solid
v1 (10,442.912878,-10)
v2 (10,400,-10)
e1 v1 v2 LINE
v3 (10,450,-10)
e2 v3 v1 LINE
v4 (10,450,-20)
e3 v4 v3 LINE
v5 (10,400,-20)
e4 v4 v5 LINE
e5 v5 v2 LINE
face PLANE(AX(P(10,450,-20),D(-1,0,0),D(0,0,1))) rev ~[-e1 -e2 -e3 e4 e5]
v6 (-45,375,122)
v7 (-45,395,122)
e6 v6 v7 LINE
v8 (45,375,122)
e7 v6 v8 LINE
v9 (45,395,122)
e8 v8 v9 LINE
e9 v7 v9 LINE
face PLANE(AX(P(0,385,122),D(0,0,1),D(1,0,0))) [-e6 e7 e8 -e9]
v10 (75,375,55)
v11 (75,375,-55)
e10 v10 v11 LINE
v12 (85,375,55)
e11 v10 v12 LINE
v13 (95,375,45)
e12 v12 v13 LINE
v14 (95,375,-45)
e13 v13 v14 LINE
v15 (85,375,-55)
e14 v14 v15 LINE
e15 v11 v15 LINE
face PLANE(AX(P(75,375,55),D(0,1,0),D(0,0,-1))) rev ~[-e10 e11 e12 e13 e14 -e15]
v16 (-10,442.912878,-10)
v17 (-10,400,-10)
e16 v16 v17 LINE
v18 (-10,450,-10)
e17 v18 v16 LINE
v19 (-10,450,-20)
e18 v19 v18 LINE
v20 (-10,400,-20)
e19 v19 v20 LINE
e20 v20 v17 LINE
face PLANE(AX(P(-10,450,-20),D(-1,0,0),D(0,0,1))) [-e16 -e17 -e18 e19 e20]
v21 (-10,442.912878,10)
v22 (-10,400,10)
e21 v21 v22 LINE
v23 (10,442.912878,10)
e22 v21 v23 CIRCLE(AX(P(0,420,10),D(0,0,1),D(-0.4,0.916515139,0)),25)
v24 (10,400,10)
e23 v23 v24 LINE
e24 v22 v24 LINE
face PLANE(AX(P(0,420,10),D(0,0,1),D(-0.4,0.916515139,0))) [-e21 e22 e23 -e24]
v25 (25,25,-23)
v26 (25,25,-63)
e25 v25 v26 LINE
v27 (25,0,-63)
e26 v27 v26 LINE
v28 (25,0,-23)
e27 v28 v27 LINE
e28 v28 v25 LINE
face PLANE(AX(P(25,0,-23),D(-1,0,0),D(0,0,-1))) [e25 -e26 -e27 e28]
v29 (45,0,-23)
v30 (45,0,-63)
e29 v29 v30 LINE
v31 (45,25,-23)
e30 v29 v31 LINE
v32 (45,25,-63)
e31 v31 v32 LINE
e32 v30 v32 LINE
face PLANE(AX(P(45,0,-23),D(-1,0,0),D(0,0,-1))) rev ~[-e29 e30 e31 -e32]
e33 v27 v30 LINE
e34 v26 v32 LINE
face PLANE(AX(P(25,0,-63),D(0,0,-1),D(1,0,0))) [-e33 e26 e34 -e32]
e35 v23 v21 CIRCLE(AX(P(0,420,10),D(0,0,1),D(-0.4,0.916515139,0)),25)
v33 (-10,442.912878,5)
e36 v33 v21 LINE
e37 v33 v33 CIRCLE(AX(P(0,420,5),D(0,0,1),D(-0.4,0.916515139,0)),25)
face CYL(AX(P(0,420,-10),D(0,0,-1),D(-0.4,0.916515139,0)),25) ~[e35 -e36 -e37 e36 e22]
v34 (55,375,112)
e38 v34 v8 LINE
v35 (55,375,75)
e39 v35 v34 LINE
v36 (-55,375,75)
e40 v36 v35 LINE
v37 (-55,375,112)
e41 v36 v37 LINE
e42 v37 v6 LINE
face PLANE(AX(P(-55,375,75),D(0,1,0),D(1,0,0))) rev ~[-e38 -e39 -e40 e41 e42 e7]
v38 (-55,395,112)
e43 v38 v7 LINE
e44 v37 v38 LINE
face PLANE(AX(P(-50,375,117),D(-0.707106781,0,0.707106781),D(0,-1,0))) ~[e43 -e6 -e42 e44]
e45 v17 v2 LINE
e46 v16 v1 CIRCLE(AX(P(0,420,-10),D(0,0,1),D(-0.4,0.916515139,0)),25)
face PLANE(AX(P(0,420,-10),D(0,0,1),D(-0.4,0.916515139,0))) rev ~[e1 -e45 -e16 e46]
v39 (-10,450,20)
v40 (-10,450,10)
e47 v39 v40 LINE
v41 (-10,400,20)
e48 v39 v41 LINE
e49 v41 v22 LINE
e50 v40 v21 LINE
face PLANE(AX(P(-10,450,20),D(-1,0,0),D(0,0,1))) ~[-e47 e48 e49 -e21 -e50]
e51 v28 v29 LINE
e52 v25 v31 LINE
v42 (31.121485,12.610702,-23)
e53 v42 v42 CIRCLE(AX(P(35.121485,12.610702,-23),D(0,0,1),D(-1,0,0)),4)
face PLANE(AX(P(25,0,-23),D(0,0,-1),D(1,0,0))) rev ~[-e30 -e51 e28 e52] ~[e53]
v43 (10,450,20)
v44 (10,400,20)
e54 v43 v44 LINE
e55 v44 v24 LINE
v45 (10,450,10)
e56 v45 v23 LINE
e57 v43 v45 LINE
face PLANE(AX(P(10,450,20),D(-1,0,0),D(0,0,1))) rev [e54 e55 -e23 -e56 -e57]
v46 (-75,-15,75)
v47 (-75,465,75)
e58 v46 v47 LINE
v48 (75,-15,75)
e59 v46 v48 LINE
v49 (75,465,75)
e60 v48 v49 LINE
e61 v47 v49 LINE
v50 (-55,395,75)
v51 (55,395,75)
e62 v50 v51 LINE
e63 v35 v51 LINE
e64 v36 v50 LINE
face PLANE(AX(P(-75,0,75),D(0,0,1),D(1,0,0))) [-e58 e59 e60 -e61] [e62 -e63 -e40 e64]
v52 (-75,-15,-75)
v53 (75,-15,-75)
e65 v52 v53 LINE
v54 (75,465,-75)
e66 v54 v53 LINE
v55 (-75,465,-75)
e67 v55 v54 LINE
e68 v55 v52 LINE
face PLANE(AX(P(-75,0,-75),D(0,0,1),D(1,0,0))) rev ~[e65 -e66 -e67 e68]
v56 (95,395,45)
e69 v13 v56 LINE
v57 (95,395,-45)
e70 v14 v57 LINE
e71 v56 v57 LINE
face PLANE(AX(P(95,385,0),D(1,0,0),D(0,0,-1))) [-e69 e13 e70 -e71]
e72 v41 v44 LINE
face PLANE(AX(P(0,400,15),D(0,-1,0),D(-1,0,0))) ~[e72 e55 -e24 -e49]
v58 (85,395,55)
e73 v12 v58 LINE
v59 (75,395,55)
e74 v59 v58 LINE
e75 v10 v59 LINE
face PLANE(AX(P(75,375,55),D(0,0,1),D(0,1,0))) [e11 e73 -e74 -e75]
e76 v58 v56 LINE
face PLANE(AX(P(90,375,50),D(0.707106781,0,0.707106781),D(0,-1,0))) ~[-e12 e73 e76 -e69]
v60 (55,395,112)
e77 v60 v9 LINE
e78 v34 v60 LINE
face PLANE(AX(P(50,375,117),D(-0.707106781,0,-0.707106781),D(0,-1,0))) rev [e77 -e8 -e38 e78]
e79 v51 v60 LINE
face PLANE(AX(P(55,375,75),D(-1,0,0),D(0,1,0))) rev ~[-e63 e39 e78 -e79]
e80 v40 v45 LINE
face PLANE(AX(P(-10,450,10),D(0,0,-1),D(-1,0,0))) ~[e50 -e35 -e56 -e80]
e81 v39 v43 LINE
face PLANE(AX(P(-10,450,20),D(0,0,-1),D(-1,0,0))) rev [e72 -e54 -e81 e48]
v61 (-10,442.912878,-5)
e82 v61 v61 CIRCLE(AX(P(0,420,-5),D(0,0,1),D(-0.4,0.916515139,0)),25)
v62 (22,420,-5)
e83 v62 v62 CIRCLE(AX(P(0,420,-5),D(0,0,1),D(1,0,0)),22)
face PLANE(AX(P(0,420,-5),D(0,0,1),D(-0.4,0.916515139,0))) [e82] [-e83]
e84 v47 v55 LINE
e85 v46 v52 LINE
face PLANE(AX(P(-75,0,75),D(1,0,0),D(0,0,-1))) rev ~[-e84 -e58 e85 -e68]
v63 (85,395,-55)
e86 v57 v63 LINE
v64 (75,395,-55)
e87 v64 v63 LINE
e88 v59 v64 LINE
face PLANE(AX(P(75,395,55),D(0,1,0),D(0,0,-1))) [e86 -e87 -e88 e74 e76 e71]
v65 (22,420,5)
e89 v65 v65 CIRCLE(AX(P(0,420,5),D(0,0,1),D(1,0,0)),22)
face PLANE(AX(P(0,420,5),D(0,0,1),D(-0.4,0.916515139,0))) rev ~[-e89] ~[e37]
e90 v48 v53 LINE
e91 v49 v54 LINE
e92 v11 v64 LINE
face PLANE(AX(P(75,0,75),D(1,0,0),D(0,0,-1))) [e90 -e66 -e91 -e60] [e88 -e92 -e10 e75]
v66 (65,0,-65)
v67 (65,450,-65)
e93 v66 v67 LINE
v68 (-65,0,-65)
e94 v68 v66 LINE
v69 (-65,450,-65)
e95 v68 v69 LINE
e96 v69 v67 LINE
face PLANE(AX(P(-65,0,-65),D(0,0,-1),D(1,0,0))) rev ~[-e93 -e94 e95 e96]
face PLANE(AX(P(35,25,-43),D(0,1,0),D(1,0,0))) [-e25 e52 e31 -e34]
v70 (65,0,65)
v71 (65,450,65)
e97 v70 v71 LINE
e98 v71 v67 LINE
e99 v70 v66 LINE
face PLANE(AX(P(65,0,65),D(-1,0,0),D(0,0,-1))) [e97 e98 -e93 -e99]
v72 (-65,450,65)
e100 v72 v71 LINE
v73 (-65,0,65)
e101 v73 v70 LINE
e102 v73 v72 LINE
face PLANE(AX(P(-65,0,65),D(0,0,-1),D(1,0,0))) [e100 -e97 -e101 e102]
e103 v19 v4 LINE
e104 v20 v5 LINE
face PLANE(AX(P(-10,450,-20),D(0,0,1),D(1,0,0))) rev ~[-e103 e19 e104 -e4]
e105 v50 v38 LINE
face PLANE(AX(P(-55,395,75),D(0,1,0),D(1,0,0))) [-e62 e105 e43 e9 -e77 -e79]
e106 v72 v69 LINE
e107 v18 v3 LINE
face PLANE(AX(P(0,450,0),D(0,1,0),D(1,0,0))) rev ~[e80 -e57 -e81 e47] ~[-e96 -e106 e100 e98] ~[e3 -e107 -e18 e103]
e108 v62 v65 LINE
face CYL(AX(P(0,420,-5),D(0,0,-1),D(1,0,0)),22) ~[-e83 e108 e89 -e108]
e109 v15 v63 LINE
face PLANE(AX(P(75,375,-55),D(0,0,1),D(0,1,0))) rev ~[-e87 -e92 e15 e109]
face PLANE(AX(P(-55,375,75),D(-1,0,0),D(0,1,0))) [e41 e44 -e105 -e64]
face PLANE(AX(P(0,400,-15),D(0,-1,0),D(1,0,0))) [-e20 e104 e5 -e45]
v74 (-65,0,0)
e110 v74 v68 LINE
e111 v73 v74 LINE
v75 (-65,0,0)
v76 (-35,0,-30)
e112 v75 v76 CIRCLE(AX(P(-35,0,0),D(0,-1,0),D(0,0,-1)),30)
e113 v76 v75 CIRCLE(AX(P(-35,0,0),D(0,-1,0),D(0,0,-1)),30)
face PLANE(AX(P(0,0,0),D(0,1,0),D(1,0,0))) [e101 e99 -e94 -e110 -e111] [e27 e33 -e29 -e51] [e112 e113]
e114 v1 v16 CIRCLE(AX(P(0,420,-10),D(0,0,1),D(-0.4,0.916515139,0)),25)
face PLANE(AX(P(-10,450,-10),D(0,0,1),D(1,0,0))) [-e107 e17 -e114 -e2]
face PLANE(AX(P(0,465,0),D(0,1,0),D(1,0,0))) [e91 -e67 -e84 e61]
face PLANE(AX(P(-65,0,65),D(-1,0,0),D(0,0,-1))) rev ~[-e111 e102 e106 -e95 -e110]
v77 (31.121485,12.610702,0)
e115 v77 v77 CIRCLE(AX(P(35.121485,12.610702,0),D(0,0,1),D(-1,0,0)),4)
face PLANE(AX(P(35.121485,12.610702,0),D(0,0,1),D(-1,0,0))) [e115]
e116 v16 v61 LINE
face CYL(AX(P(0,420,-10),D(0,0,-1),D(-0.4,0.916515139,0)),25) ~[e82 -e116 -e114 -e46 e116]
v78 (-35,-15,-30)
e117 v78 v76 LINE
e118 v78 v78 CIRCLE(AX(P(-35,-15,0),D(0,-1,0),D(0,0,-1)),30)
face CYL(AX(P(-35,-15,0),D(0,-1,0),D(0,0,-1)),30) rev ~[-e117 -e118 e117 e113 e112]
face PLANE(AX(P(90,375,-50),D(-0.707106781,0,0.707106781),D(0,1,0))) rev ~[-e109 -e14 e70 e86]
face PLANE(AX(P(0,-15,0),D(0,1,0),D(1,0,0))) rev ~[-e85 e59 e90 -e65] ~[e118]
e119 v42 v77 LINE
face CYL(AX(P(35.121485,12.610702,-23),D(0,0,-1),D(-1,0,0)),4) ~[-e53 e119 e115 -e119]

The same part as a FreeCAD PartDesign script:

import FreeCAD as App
import Part
import Sketcher


def edges_at(feature, points):
    """Names of the edges that pass closest to the given points."""
    edges = feature.Shape.Edges
    near = lambda p: min(range(len(edges)), key=lambda i: edges[i].distToShape(Part.Vertex(*p))[0])
    return sorted({f"Edge{near(p) + 1}" for p in points})


def add_polygon(sketch, points):
    """Adds a closed chain of lines whose ends are joined by coincident constraints."""
    first, n = sketch.GeometryCount, len(points)
    for a, b in zip(points, points[1:] + points[:1]):
        sketch.addGeometry(Part.LineSegment(App.Vector(*a, 0), App.Vector(*b, 0)), False)
    for i in range(n):
        sketch.addConstraint(Sketcher.Constraint("Coincident", first + i, 2, first + (i + 1) % n, 1))

doc = App.newDocument("Part")
params = doc.addObject("Spreadsheet::Sheet", "Params")
for row, (alias, value) in enumerate([
    ("sketch1_width", "150 mm"),
    ("sketch1_width2", "130 mm"),
    ("pad1_length", "450 mm"),
    ("sketch2_width", "150 mm"),
    ("pad2_length", "15 mm"),
    ("sketch3_width", "150 mm"),
    ("pad3_length", "15 mm"),
    ("sketch4_diameter", "60 mm"),
    ("pocket1_length", "15 mm"),
    ("sketch5_width", "20 mm"),
    ("sketch5_height", "10 mm"),
    ("pad4_length", "50 mm"),
    ("sketch6_diameter", "50 mm"),
    ("pad5_length", "20 mm"),
    ("sketch7_diameter", "50 mm"),
    ("sketch7_diameter2", "44 mm"),
    ("pocket2_length", "10 mm"),
    ("sketch8_width", "20 mm"),
    ("sketch8_height", "40 mm"),
    ("pad6_length", "25 mm"),
    ("sketch9_diameter", "8 mm"),
    ("pad7_length", "23 mm"),
    ("sketch10_width", "20 mm"),
    ("sketch10_height", "110 mm"),
    ("pad8_length", "20 mm"),
    ("chamfer_size", "10 mm"),
    ("chamfer2_size", "10 mm"),
    ("sketch11_width", "110 mm"),
    ("sketch11_height", "20 mm"),
    ("pad9_length", "47 mm"),
    ("chamfer3_size", "10 mm"),
], start=1):
    params.set(f"A{row}", alias)
    params.set(f"B{row}", "=" + value)
    params.setAlias(f"B{row}", alias)

body = doc.addObject("PartDesign::Body", "Body")

# Sketch on XZ plane
sketch1 = body.newObject("Sketcher::SketchObject", "Sketch")
sketch1.AttachmentSupport = (doc.getObject("XZ_Plane"), [""])
sketch1.MapMode = "FlatFace"
add_polygon(sketch1, [(-75, -75), (-75, 75), (75, 75), (75, -75)])  # lines 0-3
add_polygon(sketch1, [(65, 65), (-65, 65), (-65, -65), (65, -65)])  # lines 4-7
sketch1.addConstraint([
    Sketcher.Constraint("Vertical", 0),
    Sketcher.Constraint("Horizontal", 1),
    Sketcher.Constraint("Vertical", 2),
    Sketcher.Constraint("Horizontal", 3),
    Sketcher.Constraint("Horizontal", 4),
    Sketcher.Constraint("Vertical", 5),
    Sketcher.Constraint("Horizontal", 6),
    Sketcher.Constraint("Vertical", 7),
    Sketcher.Constraint("Symmetric", 0, 2, 2, 2, -1, 1),
    Sketcher.Constraint("Symmetric", 4, 2, 6, 2, -1, 1),
    Sketcher.Constraint("Equal", 3, 0),
    Sketcher.Constraint("Equal", 6, 5),
    Sketcher.Constraint("DistanceX", 1, 1, 1, 2, 150.0),
    Sketcher.Constraint("DistanceX", 4, 2, 4, 1, 130.0),
])
sketch1.setExpression("Constraints[20]", "Params.sketch1_width")
sketch1.setExpression("Constraints[21]", "Params.sketch1_width2")
pad1 = body.newObject("PartDesign::Pad", "Pad")
pad1.Profile = sketch1
pad1.setExpression("Length", "Params.pad1_length")
pad1.Reversed = True

# Sketch on XZ plane
sketch2 = body.newObject("Sketcher::SketchObject", "Sketch001")
sketch2.AttachmentSupport = (doc.getObject("XZ_Plane"), [""])
sketch2.MapMode = "FlatFace"
sketch2.AttachmentOffset = App.Placement(App.Vector(0, 0, -450), App.Rotation())
add_polygon(sketch2, [(-75, -75), (-75, 75), (75, 75), (75, -75)])  # lines 0-3
sketch2.addConstraint([
    Sketcher.Constraint("Vertical", 0),
    Sketcher.Constraint("Horizontal", 1),
    Sketcher.Constraint("Vertical", 2),
    Sketcher.Constraint("Horizontal", 3),
    Sketcher.Constraint("Symmetric", 0, 2, 2, 2, -1, 1),
    Sketcher.Constraint("Equal", 3, 0),
    Sketcher.Constraint("DistanceX", 1, 1, 1, 2, 150.0),
])
sketch2.setExpression("Constraints[10]", "Params.sketch2_width")
pad2 = body.newObject("PartDesign::Pad", "Pad001")
pad2.Profile = sketch2
pad2.setExpression("Length", "Params.pad2_length")
pad2.Reversed = True

# Sketch on XZ plane
sketch3 = body.newObject("Sketcher::SketchObject", "Sketch002")
sketch3.AttachmentSupport = (doc.getObject("XZ_Plane"), [""])
sketch3.MapMode = "FlatFace"
add_polygon(sketch3, [(-75, -75), (-75, 75), (75, 75), (75, -75)])  # lines 0-3
sketch3.addConstraint([
    Sketcher.Constraint("Vertical", 0),
    Sketcher.Constraint("Horizontal", 1),
    Sketcher.Constraint("Vertical", 2),
    Sketcher.Constraint("Horizontal", 3),
    Sketcher.Constraint("Symmetric", 0, 2, 2, 2, -1, 1),
    Sketcher.Constraint("Equal", 3, 0),
    Sketcher.Constraint("DistanceX", 1, 1, 1, 2, 150.0),
])
sketch3.setExpression("Constraints[10]", "Params.sketch3_width")
pad3 = body.newObject("PartDesign::Pad", "Pad002")
pad3.Profile = sketch3
pad3.setExpression("Length", "Params.pad3_length")

# Sketch on XZ plane
sketch4 = body.newObject("Sketcher::SketchObject", "Sketch003")
sketch4.AttachmentSupport = (doc.getObject("XZ_Plane"), [""])
sketch4.MapMode = "FlatFace"
sketch4.AttachmentOffset = App.Placement(App.Vector(0, 0, 15), App.Rotation())
sketch4.addGeometry(Part.Circle(App.Vector(-35, 0, 0), App.Vector(0, 0, 1), 30), False)
sketch4.addConstraint([
    Sketcher.Constraint("PointOnObject", 0, 3, -1),
    Sketcher.Constraint("Diameter", 0, 60.0),
    Sketcher.Constraint("DistanceX", 0, 3, -1, 1, 35.0),
])
sketch4.setExpression("Constraints[1]", "Params.sketch4_diameter")
pocket1 = body.newObject("PartDesign::Pocket", "Pocket")
pocket1.Profile = sketch4
pocket1.setExpression("Length", "Params.pocket1_length")

# Sketch on XZ plane
sketch5 = body.newObject("Sketcher::SketchObject", "Sketch004")
sketch5.AttachmentSupport = (doc.getObject("XZ_Plane"), [""])
sketch5.MapMode = "FlatFace"
sketch5.AttachmentOffset = App.Placement(App.Vector(0, 0, -450), App.Rotation())
add_polygon(sketch5, [(-10, -10), (-10, -20), (10, -20), (10, -10)])  # lines 0-3
sketch5.addConstraint([
    Sketcher.Constraint("Vertical", 0),
    Sketcher.Constraint("Horizontal", 1),
    Sketcher.Constraint("Vertical", 2),
    Sketcher.Constraint("Horizontal", 3),
    Sketcher.Constraint("DistanceX", 1, 1, 1, 2, 20.0),
    Sketcher.Constraint("DistanceY", 0, 2, 0, 1, 10.0),
    Sketcher.Constraint("DistanceX", 0, 2, -1, 1, 10.0),
    Sketcher.Constraint("DistanceY", 0, 2, -1, 1, 20.0),
])
sketch5.setExpression("Constraints[8]", "Params.sketch5_width")
sketch5.setExpression("Constraints[9]", "Params.sketch5_height")
pad4 = body.newObject("PartDesign::Pad", "Pad003")
pad4.Profile = sketch5
pad4.setExpression("Length", "Params.pad4_length")
doc.recompute()

mirrored = body.newObject("PartDesign::Mirrored", "Mirrored")
mirrored.Originals = [pad4]
mirrored.MirrorPlane = (doc.getObject("XY_Plane"), [""])
body.Tip = mirrored

# Sketch on XY plane
sketch6 = body.newObject("Sketcher::SketchObject", "Sketch005")
sketch6.AttachmentSupport = (doc.getObject("XY_Plane"), [""])
sketch6.MapMode = "FlatFace"
sketch6.AttachmentOffset = App.Placement(App.Vector(0, 0, -10), App.Rotation())
sketch6.addGeometry(Part.Circle(App.Vector(0, 420, 0), App.Vector(0, 0, 1), 25), False)
sketch6.addConstraint([
    Sketcher.Constraint("PointOnObject", 0, 3, -2),
    Sketcher.Constraint("Diameter", 0, 50.0),
    Sketcher.Constraint("DistanceY", -1, 1, 0, 3, 420.0),
])
sketch6.setExpression("Constraints[1]", "Params.sketch6_diameter")
pad5 = body.newObject("PartDesign::Pad", "Pad004")
pad5.Profile = sketch6
pad5.setExpression("Length", "Params.pad5_length")

# Sketch on XY plane
sketch7 = body.newObject("Sketcher::SketchObject", "Sketch006")
sketch7.AttachmentSupport = (doc.getObject("XY_Plane"), [""])
sketch7.MapMode = "FlatFace"
sketch7.AttachmentOffset = App.Placement(App.Vector(0, 0, -5), App.Rotation())
sketch7.addGeometry([
    Part.Circle(App.Vector(0, 420, 0), App.Vector(0, 0, 1), 25),
    Part.Circle(App.Vector(0, 420, 0), App.Vector(0, 0, 1), 22),
], False)
sketch7.addConstraint([
    Sketcher.Constraint("Coincident", 1, 3, 0, 3),
    Sketcher.Constraint("PointOnObject", 0, 3, -2),
    Sketcher.Constraint("Diameter", 0, 50.0),
    Sketcher.Constraint("Diameter", 1, 44.0),
    Sketcher.Constraint("DistanceY", -1, 1, 0, 3, 420.0),
])
sketch7.setExpression("Constraints[2]", "Params.sketch7_diameter")
sketch7.setExpression("Constraints[3]", "Params.sketch7_diameter2")
pocket2 = body.newObject("PartDesign::Pocket", "Pocket001")
pocket2.Profile = sketch7
pocket2.setExpression("Length", "Params.pocket2_length")
pocket2.Reversed = True

# Sketch on XZ plane
sketch8 = body.newObject("Sketcher::SketchObject", "Sketch007")
sketch8.AttachmentSupport = (doc.getObject("XZ_Plane"), [""])
sketch8.MapMode = "FlatFace"
add_polygon(sketch8, [(25, -63), (25, -23), (45, -23), (45, -63)])  # lines 0-3
sketch8.addConstraint([
    Sketcher.Constraint("Vertical", 0),
    Sketcher.Constraint("Horizontal", 1),
    Sketcher.Constraint("Vertical", 2),
    Sketcher.Constraint("Horizontal", 3),
    Sketcher.Constraint("DistanceX", 1, 1, 1, 2, 20.0),
    Sketcher.Constraint("DistanceY", 0, 1, 0, 2, 40.0),
    Sketcher.Constraint("DistanceX", -1, 1, 0, 2, 25.0),
    Sketcher.Constraint("DistanceY", 0, 2, -1, 1, 23.0),
])
sketch8.setExpression("Constraints[8]", "Params.sketch8_width")
sketch8.setExpression("Constraints[9]", "Params.sketch8_height")
pad6 = body.newObject("PartDesign::Pad", "Pad005")
pad6.Profile = sketch8
pad6.setExpression("Length", "Params.pad6_length")
pad6.Reversed = True

# Sketch on XY plane
sketch9 = body.newObject("Sketcher::SketchObject", "Sketch008")
sketch9.AttachmentSupport = (doc.getObject("XY_Plane"), [""])
sketch9.MapMode = "FlatFace"
sketch9.AttachmentOffset = App.Placement(App.Vector(0, 0, -23), App.Rotation())
sketch9.addGeometry(Part.Circle(App.Vector(35.1, 12.6, 0), App.Vector(0, 0, 1), 4), False)
sketch9.addConstraint([
    Sketcher.Constraint("Diameter", 0, 8.0),
    Sketcher.Constraint("DistanceX", -1, 1, 0, 3, 35.121485),
    Sketcher.Constraint("DistanceY", -1, 1, 0, 3, 12.610702),
])
sketch9.setExpression("Constraints[0]", "Params.sketch9_diameter")
pad7 = body.newObject("PartDesign::Pad", "Pad006")
pad7.Profile = sketch9
pad7.setExpression("Length", "Params.pad7_length")

# Sketch on YZ plane
sketch10 = body.newObject("Sketcher::SketchObject", "Sketch009")
sketch10.AttachmentSupport = (doc.getObject("YZ_Plane"), [""])
sketch10.MapMode = "FlatFace"
sketch10.AttachmentOffset = App.Placement(App.Vector(0, 0, 75), App.Rotation())
add_polygon(sketch10, [(395, 55), (375, 55), (375, -55), (395, -55)])  # lines 0-3
sketch10.addConstraint([
    Sketcher.Constraint("Horizontal", 0),
    Sketcher.Constraint("Vertical", 1),
    Sketcher.Constraint("Horizontal", 2),
    Sketcher.Constraint("Vertical", 3),
    Sketcher.Constraint("DistanceX", 0, 2, 0, 1, 20.0),
    Sketcher.Constraint("DistanceY", 1, 2, 1, 1, 110.0),
    Sketcher.Constraint("DistanceX", -1, 1, 0, 2, 375.0),
    Sketcher.Constraint("DistanceY", -1, 1, 0, 2, 55.0),
])
sketch10.setExpression("Constraints[8]", "Params.sketch10_width")
sketch10.setExpression("Constraints[9]", "Params.sketch10_height")
pad8 = body.newObject("PartDesign::Pad", "Pad007")
pad8.Profile = sketch10
pad8.setExpression("Length", "Params.pad8_length")
doc.recompute()

chamfer = body.newObject("PartDesign::Chamfer", "Chamfer")
chamfer.Base = (pad8, edges_at(pad8, [(95, 385, 55)]))
chamfer.setExpression("Size", "Params.chamfer_size")
doc.recompute()

chamfer2 = body.newObject("PartDesign::Chamfer", "Chamfer001")
chamfer2.Base = (chamfer, edges_at(chamfer, [(95, 385, -55)]))
chamfer2.setExpression("Size", "Params.chamfer2_size")

# Sketch on XY plane
sketch11 = body.newObject("Sketcher::SketchObject", "Sketch010")
sketch11.AttachmentSupport = (doc.getObject("XY_Plane"), [""])
sketch11.MapMode = "FlatFace"
sketch11.AttachmentOffset = App.Placement(App.Vector(0, 0, 75), App.Rotation())
add_polygon(sketch11, [(-55, 395), (-55, 375), (55, 375), (55, 395)])  # lines 0-3
sketch11.addConstraint([
    Sketcher.Constraint("Vertical", 0),
    Sketcher.Constraint("Horizontal", 1),
    Sketcher.Constraint("Vertical", 2),
    Sketcher.Constraint("Horizontal", 3),
    Sketcher.Constraint("DistanceX", 1, 1, 1, 2, 110.0),
    Sketcher.Constraint("DistanceY", 0, 2, 0, 1, 20.0),
    Sketcher.Constraint("DistanceX", 0, 2, -1, 1, 55.0),
    Sketcher.Constraint("DistanceY", -1, 1, 0, 2, 375.0),
])
sketch11.setExpression("Constraints[8]", "Params.sketch11_width")
sketch11.setExpression("Constraints[9]", "Params.sketch11_height")
pad9 = body.newObject("PartDesign::Pad", "Pad008")
pad9.Profile = sketch11
pad9.setExpression("Length", "Params.pad9_length")
doc.recompute()

chamfer3 = body.newObject("PartDesign::Chamfer", "Chamfer002")
chamfer3.Base = (pad9, edges_at(pad9, [(-55, 385, 122), (55, 385, 122)]))
chamfer3.setExpression("Size", "Params.chamfer3_size")

doc.recompute()
